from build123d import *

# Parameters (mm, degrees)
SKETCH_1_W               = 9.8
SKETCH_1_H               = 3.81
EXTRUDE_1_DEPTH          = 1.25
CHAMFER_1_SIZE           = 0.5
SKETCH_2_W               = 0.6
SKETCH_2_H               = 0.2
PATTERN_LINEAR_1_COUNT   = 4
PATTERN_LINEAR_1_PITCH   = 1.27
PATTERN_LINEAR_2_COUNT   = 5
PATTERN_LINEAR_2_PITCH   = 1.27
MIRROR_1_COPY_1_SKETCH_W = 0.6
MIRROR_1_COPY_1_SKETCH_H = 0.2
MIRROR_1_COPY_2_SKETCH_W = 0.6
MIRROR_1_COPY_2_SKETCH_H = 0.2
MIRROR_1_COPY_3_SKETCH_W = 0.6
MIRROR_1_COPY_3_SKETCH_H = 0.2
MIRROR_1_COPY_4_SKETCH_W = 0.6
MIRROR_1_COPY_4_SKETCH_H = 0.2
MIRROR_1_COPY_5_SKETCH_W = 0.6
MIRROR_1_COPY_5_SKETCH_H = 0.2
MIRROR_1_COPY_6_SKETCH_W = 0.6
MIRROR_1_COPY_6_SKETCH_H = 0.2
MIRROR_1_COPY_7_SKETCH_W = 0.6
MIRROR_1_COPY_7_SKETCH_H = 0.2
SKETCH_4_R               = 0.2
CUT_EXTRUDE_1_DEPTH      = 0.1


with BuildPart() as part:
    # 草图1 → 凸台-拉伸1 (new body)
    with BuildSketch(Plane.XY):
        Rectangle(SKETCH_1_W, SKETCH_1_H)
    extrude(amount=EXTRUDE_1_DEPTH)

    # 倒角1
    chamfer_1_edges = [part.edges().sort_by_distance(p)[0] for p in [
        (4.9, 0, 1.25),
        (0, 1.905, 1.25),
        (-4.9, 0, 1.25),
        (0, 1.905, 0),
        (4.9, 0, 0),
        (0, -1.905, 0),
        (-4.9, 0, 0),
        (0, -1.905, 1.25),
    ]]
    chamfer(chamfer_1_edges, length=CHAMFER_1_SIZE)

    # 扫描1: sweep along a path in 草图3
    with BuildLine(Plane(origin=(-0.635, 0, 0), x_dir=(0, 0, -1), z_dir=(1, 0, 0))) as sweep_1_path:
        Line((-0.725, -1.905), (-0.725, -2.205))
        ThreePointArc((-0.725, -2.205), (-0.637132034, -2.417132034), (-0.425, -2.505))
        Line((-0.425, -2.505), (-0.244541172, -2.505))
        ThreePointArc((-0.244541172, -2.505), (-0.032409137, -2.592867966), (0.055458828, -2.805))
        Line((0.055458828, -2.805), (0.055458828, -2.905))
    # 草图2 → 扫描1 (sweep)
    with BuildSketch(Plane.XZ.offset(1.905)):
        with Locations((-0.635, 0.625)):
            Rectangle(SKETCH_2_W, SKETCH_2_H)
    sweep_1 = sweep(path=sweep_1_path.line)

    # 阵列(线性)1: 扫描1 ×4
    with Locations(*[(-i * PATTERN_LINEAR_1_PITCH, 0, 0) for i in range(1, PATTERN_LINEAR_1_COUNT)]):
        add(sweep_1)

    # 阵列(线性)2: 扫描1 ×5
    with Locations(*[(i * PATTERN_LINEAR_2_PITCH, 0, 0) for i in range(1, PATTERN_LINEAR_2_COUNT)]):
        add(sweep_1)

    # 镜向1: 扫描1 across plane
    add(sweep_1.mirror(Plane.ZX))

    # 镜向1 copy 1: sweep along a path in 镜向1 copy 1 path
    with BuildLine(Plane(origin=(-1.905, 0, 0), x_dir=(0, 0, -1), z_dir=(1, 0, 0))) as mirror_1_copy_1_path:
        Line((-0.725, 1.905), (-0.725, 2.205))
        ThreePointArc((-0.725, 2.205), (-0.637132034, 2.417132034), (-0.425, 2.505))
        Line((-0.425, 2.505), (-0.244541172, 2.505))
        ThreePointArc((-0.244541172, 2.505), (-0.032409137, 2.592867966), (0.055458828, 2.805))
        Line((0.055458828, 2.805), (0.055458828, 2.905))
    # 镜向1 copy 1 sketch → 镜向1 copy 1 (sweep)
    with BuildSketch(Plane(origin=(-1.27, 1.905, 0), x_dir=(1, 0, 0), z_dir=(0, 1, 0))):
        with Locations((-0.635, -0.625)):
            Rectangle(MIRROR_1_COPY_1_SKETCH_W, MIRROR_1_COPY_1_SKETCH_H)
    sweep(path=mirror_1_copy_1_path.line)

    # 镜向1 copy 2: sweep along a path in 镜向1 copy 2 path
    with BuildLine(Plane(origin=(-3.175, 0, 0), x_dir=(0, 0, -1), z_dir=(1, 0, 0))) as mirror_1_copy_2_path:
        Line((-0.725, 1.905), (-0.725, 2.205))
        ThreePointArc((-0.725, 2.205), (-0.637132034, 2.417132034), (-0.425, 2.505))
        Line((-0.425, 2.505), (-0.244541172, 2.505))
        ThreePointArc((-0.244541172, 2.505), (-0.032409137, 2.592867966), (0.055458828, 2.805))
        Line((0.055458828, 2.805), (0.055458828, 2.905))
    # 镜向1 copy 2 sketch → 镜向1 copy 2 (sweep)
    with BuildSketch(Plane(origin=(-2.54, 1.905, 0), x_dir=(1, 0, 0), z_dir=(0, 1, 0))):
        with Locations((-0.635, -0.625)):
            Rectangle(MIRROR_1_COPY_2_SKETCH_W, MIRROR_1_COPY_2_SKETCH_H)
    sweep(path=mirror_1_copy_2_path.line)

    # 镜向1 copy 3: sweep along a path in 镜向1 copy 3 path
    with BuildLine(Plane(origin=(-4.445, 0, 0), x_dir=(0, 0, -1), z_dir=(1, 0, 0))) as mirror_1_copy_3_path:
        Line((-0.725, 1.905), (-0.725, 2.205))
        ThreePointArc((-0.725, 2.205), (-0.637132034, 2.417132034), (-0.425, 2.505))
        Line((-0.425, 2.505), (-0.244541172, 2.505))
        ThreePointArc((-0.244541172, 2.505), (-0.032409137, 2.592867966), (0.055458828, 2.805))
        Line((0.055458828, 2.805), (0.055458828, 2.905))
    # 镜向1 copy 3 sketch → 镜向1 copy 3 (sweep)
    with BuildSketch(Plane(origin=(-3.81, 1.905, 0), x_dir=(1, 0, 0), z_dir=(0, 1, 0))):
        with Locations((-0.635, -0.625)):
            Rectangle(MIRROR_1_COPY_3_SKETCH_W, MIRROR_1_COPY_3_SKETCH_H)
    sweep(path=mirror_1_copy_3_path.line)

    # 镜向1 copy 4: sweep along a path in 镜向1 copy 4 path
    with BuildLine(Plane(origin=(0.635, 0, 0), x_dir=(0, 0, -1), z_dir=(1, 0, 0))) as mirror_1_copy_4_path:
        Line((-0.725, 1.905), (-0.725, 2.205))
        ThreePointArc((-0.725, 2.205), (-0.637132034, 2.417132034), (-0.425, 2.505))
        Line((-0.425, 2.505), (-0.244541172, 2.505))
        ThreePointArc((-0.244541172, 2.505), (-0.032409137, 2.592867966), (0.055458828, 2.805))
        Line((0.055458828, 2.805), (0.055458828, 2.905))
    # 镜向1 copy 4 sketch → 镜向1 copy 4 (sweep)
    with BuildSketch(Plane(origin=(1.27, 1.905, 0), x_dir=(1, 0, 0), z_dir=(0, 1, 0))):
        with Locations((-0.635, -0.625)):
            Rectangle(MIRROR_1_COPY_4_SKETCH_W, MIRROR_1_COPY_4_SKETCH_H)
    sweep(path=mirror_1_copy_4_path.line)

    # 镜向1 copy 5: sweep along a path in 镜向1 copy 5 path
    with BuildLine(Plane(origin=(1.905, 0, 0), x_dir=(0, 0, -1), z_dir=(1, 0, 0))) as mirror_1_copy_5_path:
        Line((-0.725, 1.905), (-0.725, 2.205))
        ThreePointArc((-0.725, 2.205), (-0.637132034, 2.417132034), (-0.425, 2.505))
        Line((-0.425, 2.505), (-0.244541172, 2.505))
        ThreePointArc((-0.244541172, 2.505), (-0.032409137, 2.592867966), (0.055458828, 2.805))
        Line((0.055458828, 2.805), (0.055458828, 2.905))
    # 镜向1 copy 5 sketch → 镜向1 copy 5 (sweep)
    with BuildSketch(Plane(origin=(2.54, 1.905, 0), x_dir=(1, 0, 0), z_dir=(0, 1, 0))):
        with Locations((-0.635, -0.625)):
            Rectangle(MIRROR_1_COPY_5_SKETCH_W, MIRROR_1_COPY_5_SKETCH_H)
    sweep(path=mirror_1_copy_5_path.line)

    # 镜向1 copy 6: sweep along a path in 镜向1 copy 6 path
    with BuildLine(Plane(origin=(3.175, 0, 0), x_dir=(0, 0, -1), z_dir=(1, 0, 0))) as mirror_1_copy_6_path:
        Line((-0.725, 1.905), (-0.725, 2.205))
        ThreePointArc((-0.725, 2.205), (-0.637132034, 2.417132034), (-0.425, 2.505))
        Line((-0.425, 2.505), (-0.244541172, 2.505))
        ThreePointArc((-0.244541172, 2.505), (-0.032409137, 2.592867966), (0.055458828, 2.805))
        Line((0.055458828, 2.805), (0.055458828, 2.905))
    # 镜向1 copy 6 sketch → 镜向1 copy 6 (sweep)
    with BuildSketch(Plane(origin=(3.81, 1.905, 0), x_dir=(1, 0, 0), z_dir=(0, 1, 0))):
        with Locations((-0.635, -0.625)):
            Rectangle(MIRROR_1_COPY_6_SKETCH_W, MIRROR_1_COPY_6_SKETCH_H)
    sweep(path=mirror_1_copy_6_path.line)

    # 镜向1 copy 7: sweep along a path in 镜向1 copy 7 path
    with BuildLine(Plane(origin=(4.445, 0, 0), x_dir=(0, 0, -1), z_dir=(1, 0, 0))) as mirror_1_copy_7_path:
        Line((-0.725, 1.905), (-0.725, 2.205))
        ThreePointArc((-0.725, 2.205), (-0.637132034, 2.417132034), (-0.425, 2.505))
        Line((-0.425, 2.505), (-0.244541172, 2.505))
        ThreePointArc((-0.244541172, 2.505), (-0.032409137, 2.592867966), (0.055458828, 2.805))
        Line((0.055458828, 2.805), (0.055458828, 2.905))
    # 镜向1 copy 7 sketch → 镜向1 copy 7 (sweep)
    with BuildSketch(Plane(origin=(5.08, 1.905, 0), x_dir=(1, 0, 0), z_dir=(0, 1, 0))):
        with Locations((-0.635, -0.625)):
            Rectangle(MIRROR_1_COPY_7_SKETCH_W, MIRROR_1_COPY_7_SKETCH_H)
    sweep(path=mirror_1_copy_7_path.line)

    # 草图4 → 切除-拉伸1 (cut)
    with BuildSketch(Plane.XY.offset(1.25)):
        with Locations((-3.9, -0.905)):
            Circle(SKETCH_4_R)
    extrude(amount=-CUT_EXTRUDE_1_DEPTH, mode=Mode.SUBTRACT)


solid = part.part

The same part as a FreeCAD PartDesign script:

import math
import FreeCAD as App
import Part
import Sketcher

V = App.Vector


def edges_at(feature, points):
    """Names of the edges that pass closest to the given points."""
    edges = feature.Shape.Edges
    near = lambda p: min(range(len(edges)), key=lambda i: edges[i].distToShape(Part.Vertex(*p))[0])
    return sorted({f"Edge{near(p) + 1}" for p in points})


def add_polygon(sketch, points):
    """Adds a closed chain of lines whose ends are joined by coincident constraints."""
    first, n = sketch.GeometryCount, len(points)
    for a, b in zip(points, points[1:] + points[:1]):
        sketch.addGeometry(Part.LineSegment(App.Vector(*a, 0), App.Vector(*b, 0)), False)
    for i in range(n):
        sketch.addConstraint(Sketcher.Constraint("Coincident", first + i, 2, first + (i + 1) % n, 1))

doc = App.newDocument("Part")
body = doc.addObject("PartDesign::Body", "Body")

sketch1 = doc.addObject("Sketcher::SketchObject", "Sketch")
body.addObject(sketch1)
sketch1.AttachmentSupport = (doc.XY_Plane, [""])
sketch1.MapMode = "FlatFace"
add_polygon(sketch1, [(-4.9, 1.905), (-4.9, -1.905), (4.9, -1.905), (4.9, 1.905)])
sketch1.addConstraint(Sketcher.Constraint("Vertical", 0))
sketch1.addConstraint(Sketcher.Constraint("Horizontal", 1))
sketch1.addConstraint(Sketcher.Constraint("Vertical", 2))
sketch1.addConstraint(Sketcher.Constraint("Horizontal", 3))
sketch1.addConstraint(Sketcher.Constraint("Symmetric", 0, 2, 2, 2, -1, 1))
sketch1.addConstraint(Sketcher.Constraint("DistanceX", 1, 1, 1, 2, 9.8))
sketch1.addConstraint(Sketcher.Constraint("DistanceY", 0, 2, 0, 1, 3.81))
pad1 = doc.addObject("PartDesign::Pad", "Pad")
body.addObject(pad1)
pad1.Profile = sketch1
pad1.Length = 1.25
doc.recompute()

chamfer = doc.addObject("PartDesign::Chamfer", "Chamfer")
body.addObject(chamfer)
chamfer.Base = (pad1, edges_at(pad1, [
    (4.9, 0, 1.25),
    (0, 1.905, 1.25),
    (-4.9, 0, 1.25),
    (0, 1.905, 0),
    (4.9, 0, 0),
    (0, -1.905, 0),
    (-4.9, 0, 0),
    (0, -1.905, 1.25),
]))
chamfer.Size = 0.5

sketch2 = doc.addObject("Sketcher::SketchObject", "Sketch001")
body.addObject(sketch2)
sketch2.AttachmentSupport = (doc.XZ_Plane, [""])
sketch2.MapMode = "FlatFace"
sketch2.AttachmentOffset = App.Placement(V(0, 0, 1.905), App.Rotation())
add_polygon(sketch2, [(-0.935, 0.725), (-0.935, 0.525), (-0.335, 0.525), (-0.335, 0.725)])
sketch2.addConstraint(Sketcher.Constraint("Vertical", 0))
sketch2.addConstraint(Sketcher.Constraint("Horizontal", 1))
sketch2.addConstraint(Sketcher.Constraint("Vertical", 2))
sketch2.addConstraint(Sketcher.Constraint("Horizontal", 3))
sketch2.addConstraint(Sketcher.Constraint("DistanceX", 1, 1, 1, 2, 0.6))
sketch2.addConstraint(Sketcher.Constraint("DistanceY", 0, 2, 0, 1, 0.2))
sketch2.addConstraint(Sketcher.Constraint("DistanceX", 0, 2, -1, 1, 0.935))
sketch2.addConstraint(Sketcher.Constraint("DistanceY", -1, 1, 0, 2, 0.525))

sketch3 = doc.addObject("Sketcher::SketchObject", "Sketch002")
body.addObject(sketch3)
sketch3.AttachmentSupport = (doc.YZ_Plane, [""])
sketch3.MapMode = "FlatFace"
sketch3.AttachmentOffset = App.Placement(V(0, 0, -0.635), App.Rotation())
sketch3.addGeometry(Part.LineSegment(V(-1.905, 0.725, 0), V(-2.205, 0.725, 0)), False)
sketch3.addGeometry(Part.ArcOfCircle(Part.Circle(V(-2.205, 0.425, 0), V(0, 0, 1), 0.3), math.radians(90), math.radians(180)), False)
sketch3.addGeometry(Part.LineSegment(V(-2.505, 0.425, 0), V(-2.505, 0.244541, 0)), False)
sketch3.addGeometry(Part.ArcOfCircle(Part.Circle(V(-2.805, 0.244541, 0), V(0, 0, 1), 0.3), math.radians(-90), math.radians(0)), False)
sketch3.addGeometry(Part.LineSegment(V(-2.805, -0.055459, 0), V(-2.905, -0.055459, 0)), False)
sketch3.addConstraint(Sketcher.Constraint("Tangent", 0, 2, 1, 1))
sketch3.addConstraint(Sketcher.Constraint("Tangent", 1, 2, 2, 1))
sketch3.addConstraint(Sketcher.Constraint("Tangent", 2, 2, 3, 2))
sketch3.addConstraint(Sketcher.Constraint("Tangent", 3, 1, 4, 1))
sketch3.addConstraint(Sketcher.Constraint("Horizontal", 0))
sketch3.addConstraint(Sketcher.Constraint("Vertical", 2))
sketch3.addConstraint(Sketcher.Constraint("Horizontal", 4))
sketch3.addConstraint(Sketcher.Constraint("Equal", 1, 3))
sketch3.addConstraint(Sketcher.Constraint("Radius", 1, 0.3))
sketch3.addConstraint(Sketcher.Constraint("DistanceX", 0, 2, 0, 1, 0.3))
sketch3.addConstraint(Sketcher.Constraint("DistanceX", 4, 2, 4, 1, 0.1))
sketch3.addConstraint(Sketcher.Constraint("DistanceX", 1, 3, -1, 1, 2.205))
sketch3.addConstraint(Sketcher.Constraint("DistanceY", -1, 1, 1, 3, 0.425))
sketch3.addConstraint(Sketcher.Constraint("DistanceY", 2, 2, 2, 1, 0.180459))
doc.recompute()

additivepipe = doc.addObject("PartDesign::AdditivePipe", "AdditivePipe")
body.addObject(additivepipe)
additivepipe.Profile = sketch2
additivepipe.Spine = (sketch3, ["Edge1", "Edge2", "Edge3", "Edge4", "Edge5"])
doc.recompute()

linearpattern = doc.addObject("PartDesign::LinearPattern", "LinearPattern")
body.addObject(linearpattern)
linearpattern.Originals = [additivepipe]
linearpattern.Direction = (doc.X_Axis, [""])
linearpattern.Mode = "offset"
linearpattern.Offset = 1.27
linearpattern.Occurrences = 4
linearpattern.Reversed = True
body.Tip = linearpattern
doc.recompute()

linearpattern2 = doc.addObject("PartDesign::LinearPattern", "LinearPattern001")
body.addObject(linearpattern2)
linearpattern2.Originals = [additivepipe]
linearpattern2.Direction = (doc.X_Axis, [""])
linearpattern2.Mode = "offset"
linearpattern2.Offset = 1.27
linearpattern2.Occurrences = 5
body.Tip = linearpattern2
doc.recompute()

mirrored = doc.addObject("PartDesign::Mirrored", "Mirrored")
body.addObject(mirrored)
mirrored.Originals = [additivepipe]
mirrored.MirrorPlane = (doc.XZ_Plane, [""])
body.Tip = mirrored

sketch4 = doc.addObject("Sketcher::SketchObject", "Sketch003")
body.addObject(sketch4)
sketch4.AttachmentSupport = (doc.XZ_Plane, [""])
sketch4.MapMode = "FlatFace"
sketch4.AttachmentOffset = App.Placement(V(0, 0, -1.905), App.Rotation())
add_polygon(sketch4, [(-2.205, 0.525), (-2.205, 0.725), (-1.605, 0.725), (-1.605, 0.525)])
sketch4.addConstraint(Sketcher.Constraint("Vertical", 0))
sketch4.addConstraint(Sketcher.Constraint("Horizontal", 1))
sketch4.addConstraint(Sketcher.Constraint("Vertical", 2))
sketch4.addConstraint(Sketcher.Constraint("Horizontal", 3))
sketch4.addConstraint(Sketcher.Constraint("DistanceX", 1, 1, 1, 2, 0.6))
sketch4.addConstraint(Sketcher.Constraint("DistanceY", 0, 1, 0, 2, 0.2))
sketch4.addConstraint(Sketcher.Constraint("DistanceX", 0, 2, -1, 1, 2.205))
sketch4.addConstraint(Sketcher.Constraint("DistanceY", -1, 1, 0, 2, 0.725))

sketch5 = doc.addObject("Sketcher::SketchObject", "Sketch004")
body.addObject(sketch5)
sketch5.AttachmentSupport = (doc.YZ_Plane, [""])
sketch5.MapMode = "FlatFace"
sketch5.AttachmentOffset = App.Placement(V(0, 0, -1.905), App.Rotation())
sketch5.addGeometry(Part.LineSegment(V(1.905, 0.725, 0), V(2.205, 0.725, 0)), False)
sketch5.addGeometry(Part.ArcOfCircle(Part.Circle(V(2.205, 0.425, 0), V(0, 0, 1), 0.3), math.radians(0), math.radians(90)), False)
sketch5.addGeometry(Part.LineSegment(V(2.505, 0.425, 0), V(2.505, 0.244541, 0)), False)
sketch5.addGeometry(Part.ArcOfCircle(Part.Circle(V(2.805, 0.244541, 0), V(0, 0, 1), 0.3), math.radians(180), math.radians(270)), False)
sketch5.addGeometry(Part.LineSegment(V(2.805, -0.055459, 0), V(2.905, -0.055459, 0)), False)
sketch5.addConstraint(Sketcher.Constraint("Tangent", 0, 2, 1, 2))
sketch5.addConstraint(Sketcher.Constraint("Tangent", 1, 1, 2, 1))
sketch5.addConstraint(Sketcher.Constraint("Tangent", 2, 2, 3, 1))
sketch5.addConstraint(Sketcher.Constraint("Tangent", 3, 2, 4, 1))
sketch5.addConstraint(Sketcher.Constraint("Horizontal", 0))
sketch5.addConstraint(Sketcher.Constraint("Vertical", 2))
sketch5.addConstraint(Sketcher.Constraint("Horizontal", 4))
sketch5.addConstraint(Sketcher.Constraint("Equal", 1, 3))
sketch5.addConstraint(Sketcher.Constraint("Radius", 1, 0.3))
sketch5.addConstraint(Sketcher.Constraint("DistanceX", 0, 1, 0, 2, 0.3))
sketch5.addConstraint(Sketcher.Constraint("DistanceX", 4, 1, 4, 2, 0.1))
sketch5.addConstraint(Sketcher.Constraint("DistanceX", -1, 1, 1, 3, 2.205))
sketch5.addConstraint(Sketcher.Constraint("DistanceY", -1, 1, 1, 3, 0.425))
sketch5.addConstraint(Sketcher.Constraint("DistanceY", 2, 2, 2, 1, 0.180459))
doc.recompute()

additivepipe2 = doc.addObject("PartDesign::AdditivePipe", "AdditivePipe001")
body.addObject(additivepipe2)
additivepipe2.Profile = sketch4
additivepipe2.Spine = (sketch5, ["Edge1", "Edge2", "Edge3", "Edge4", "Edge5"])

sketch6 = doc.addObject("Sketcher::SketchObject", "Sketch005")
body.addObject(sketch6)
sketch6.AttachmentSupport = (doc.XZ_Plane, [""])
sketch6.MapMode = "FlatFace"
sketch6.AttachmentOffset = App.Placement(V(0, 0, -1.905), App.Rotation())
add_polygon(sketch6, [(-3.475, 0.525), (-3.475, 0.725), (-2.875, 0.725), (-2.875, 0.525)])
sketch6.addConstraint(Sketcher.Constraint("Vertical", 0))
sketch6.addConstraint(Sketcher.Constraint("Horizontal", 1))
sketch6.addConstraint(Sketcher.Constraint("Vertical", 2))
sketch6.addConstraint(Sketcher.Constraint("Horizontal", 3))
sketch6.addConstraint(Sketcher.Constraint("DistanceX", 1, 1, 1, 2, 0.6))
sketch6.addConstraint(Sketcher.Constraint("DistanceY", 0, 1, 0, 2, 0.2))
sketch6.addConstraint(Sketcher.Constraint("DistanceX", 0, 2, -1, 1, 3.475))
sketch6.addConstraint(Sketcher.Constraint("DistanceY", -1, 1, 0, 2, 0.725))

sketch7 = doc.addObject("Sketcher::SketchObject", "Sketch006")
body.addObject(sketch7)
sketch7.AttachmentSupport = (doc.YZ_Plane, [""])
sketch7.MapMode = "FlatFace"
sketch7.AttachmentOffset = App.Placement(V(0, 0, -3.175), App.Rotation())
sketch7.addGeometry(Part.LineSegment(V(1.905, 0.725, 0), V(2.205, 0.725, 0)), False)
sketch7.addGeometry(Part.ArcOfCircle(Part.Circle(V(2.205, 0.425, 0), V(0, 0, 1), 0.3), math.radians(0), math.radians(90)), False)
sketch7.addGeometry(Part.LineSegment(V(2.505, 0.425, 0), V(2.505, 0.244541, 0)), False)
sketch7.addGeometry(Part.ArcOfCircle(Part.Circle(V(2.805, 0.244541, 0), V(0, 0, 1), 0.3), math.radians(180), math.radians(270)), False)
sketch7.addGeometry(Part.LineSegment(V(2.805, -0.055459, 0), V(2.905, -0.055459, 0)), False)
sketch7.addConstraint(Sketcher.Constraint("Tangent", 0, 2, 1, 2))
sketch7.addConstraint(Sketcher.Constraint("Tangent", 1, 1, 2, 1))
sketch7.addConstraint(Sketcher.Constraint("Tangent", 2, 2, 3, 1))
sketch7.addConstraint(Sketcher.Constraint("Tangent", 3, 2, 4, 1))
sketch7.addConstraint(Sketcher.Constraint("Horizontal", 0))
sketch7.addConstraint(Sketcher.Constraint("Vertical", 2))
sketch7.addConstraint(Sketcher.Constraint("Horizontal", 4))
sketch7.addConstraint(Sketcher.Constraint("Equal", 1, 3))
sketch7.addConstraint(Sketcher.Constraint("Radius", 1, 0.3))
sketch7.addConstraint(Sketcher.Constraint("DistanceX", 0, 1, 0, 2, 0.3))
sketch7.addConstraint(Sketcher.Constraint("DistanceX", 4, 1, 4, 2, 0.1))
sketch7.addConstraint(Sketcher.Constraint("DistanceX", -1, 1, 1, 3, 2.205))
sketch7.addConstraint(Sketcher.Constraint("DistanceY", -1, 1, 1, 3, 0.425))
sketch7.addConstraint(Sketcher.Constraint("DistanceY", 2, 2, 2, 1, 0.180459))
doc.recompute()

additivepipe3 = doc.addObject("PartDesign::AdditivePipe", "AdditivePipe002")
body.addObject(additivepipe3)
additivepipe3.Profile = sketch6
additivepipe3.Spine = (sketch7, ["Edge1", "Edge2", "Edge3", "Edge4", "Edge5"])

sketch8 = doc.addObject("Sketcher::SketchObject", "Sketch007")
body.addObject(sketch8)
sketch8.AttachmentSupport = (doc.XZ_Plane, [""])
sketch8.MapMode = "FlatFace"
sketch8.AttachmentOffset = App.Placement(V(0, 0, -1.905), App.Rotation())
add_polygon(sketch8, [(-4.745, 0.525), (-4.745, 0.725), (-4.145, 0.725), (-4.145, 0.525)])
sketch8.addConstraint(Sketcher.Constraint("Vertical", 0))
sketch8.addConstraint(Sketcher.Constraint("Horizontal", 1))
sketch8.addConstraint(Sketcher.Constraint("Vertical", 2))
sketch8.addConstraint(Sketcher.Constraint("Horizontal", 3))
sketch8.addConstraint(Sketcher.Constraint("DistanceX", 1, 1, 1, 2, 0.6))
sketch8.addConstraint(Sketcher.Constraint("DistanceY", 0, 1, 0, 2, 0.2))
sketch8.addConstraint(Sketcher.Constraint("DistanceX", 0, 2, -1, 1, 4.745))
sketch8.addConstraint(Sketcher.Constraint("DistanceY", -1, 1, 0, 2, 0.725))

sketch9 = doc.addObject("Sketcher::SketchObject", "Sketch008")
body.addObject(sketch9)
sketch9.AttachmentSupport = (doc.YZ_Plane, [""])
sketch9.MapMode = "FlatFace"
sketch9.AttachmentOffset = App.Placement(V(0, 0, -4.445), App.Rotation())
sketch9.addGeometry(Part.LineSegment(V(1.905, 0.725, 0), V(2.205, 0.725, 0)), False)
sketch9.addGeometry(Part.ArcOfCircle(Part.Circle(V(2.205, 0.425, 0), V(0, 0, 1), 0.3), math.radians(0), math.radians(90)), False)
sketch9.addGeometry(Part.LineSegment(V(2.505, 0.425, 0), V(2.505, 0.244541, 0)), False)
sketch9.addGeometry(Part.ArcOfCircle(Part.Circle(V(2.805, 0.244541, 0), V(0, 0, 1), 0.3), math.radians(180), math.radians(270)), False)
sketch9.addGeometry(Part.LineSegment(V(2.805, -0.055459, 0), V(2.905, -0.055459, 0)), False)
sketch9.addConstraint(Sketcher.Constraint("Tangent", 0, 2, 1, 2))
sketch9.addConstraint(Sketcher.Constraint("Tangent", 1, 1, 2, 1))
sketch9.addConstraint(Sketcher.Constraint("Tangent", 2, 2, 3, 1))
sketch9.addConstraint(Sketcher.Constraint("Tangent", 3, 2, 4, 1))
sketch9.addConstraint(Sketcher.Constraint("Horizontal", 0))
sketch9.addConstraint(Sketcher.Constraint("Vertical", 2))
sketch9.addConstraint(Sketcher.Constraint("Horizontal", 4))
sketch9.addConstraint(Sketcher.Constraint("Equal", 1, 3))
sketch9.addConstraint(Sketcher.Constraint("Radius", 1, 0.3))
sketch9.addConstraint(Sketcher.Constraint("DistanceX", 0, 1, 0, 2, 0.3))
sketch9.addConstraint(Sketcher.Constraint("DistanceX", 4, 1, 4, 2, 0.1))
sketch9.addConstraint(Sketcher.Constraint("DistanceX", -1, 1, 1, 3, 2.205))
sketch9.addConstraint(Sketcher.Constraint("DistanceY", -1, 1, 1, 3, 0.425))
sketch9.addConstraint(Sketcher.Constraint("DistanceY", 2, 2, 2, 1, 0.180459))
doc.recompute()

additivepipe4 = doc.addObject("PartDesign::AdditivePipe", "AdditivePipe003")
body.addObject(additivepipe4)
additivepipe4.Profile = sketch8
additivepipe4.Spine = (sketch9, ["Edge1", "Edge2", "Edge3", "Edge4", "Edge5"])

sketch10 = doc.addObject("Sketcher::SketchObject", "Sketch009")
body.addObject(sketch10)
sketch10.AttachmentSupport = (doc.XZ_Plane, [""])
sketch10.MapMode = "FlatFace"
sketch10.AttachmentOffset = App.Placement(V(0, 0, -1.905), App.Rotation())
add_polygon(sketch10, [(0.335, 0.525), (0.335, 0.725), (0.935, 0.725), (0.935, 0.525)])
sketch10.addConstraint(Sketcher.Constraint("Vertical", 0))
sketch10.addConstraint(Sketcher.Constraint("Horizontal", 1))
sketch10.addConstraint(Sketcher.Constraint("Vertical", 2))
sketch10.addConstraint(Sketcher.Constraint("Horizontal", 3))
sketch10.addConstraint(Sketcher.Constraint("DistanceX", 1, 1, 1, 2, 0.6))
sketch10.addConstraint(Sketcher.Constraint("DistanceY", 0, 1, 0, 2, 0.2))
sketch10.addConstraint(Sketcher.Constraint("DistanceX", -1, 1, 0, 2, 0.335))
sketch10.addConstraint(Sketcher.Constraint("DistanceY", -1, 1, 0, 2, 0.725))

sketch11 = doc.addObject("Sketcher::SketchObject", "Sketch010")
body.addObject(sketch11)
sketch11.AttachmentSupport = (doc.YZ_Plane, [""])
sketch11.MapMode = "FlatFace"
sketch11.AttachmentOffset = App.Placement(V(0, 0, 0.635), App.Rotation())
sketch11.addGeometry(Part.LineSegment(V(1.905, 0.725, 0), V(2.205, 0.725, 0)), False)
sketch11.addGeometry(Part.ArcOfCircle(Part.Circle(V(2.205, 0.425, 0), V(0, 0, 1), 0.3), math.radians(0), math.radians(90)), False)
sketch11.addGeometry(Part.LineSegment(V(2.505, 0.425, 0), V(2.505, 0.244541, 0)), False)
sketch11.addGeometry(Part.ArcOfCircle(Part.Circle(V(2.805, 0.244541, 0), V(0, 0, 1), 0.3), math.radians(180), math.radians(270)), False)
sketch11.addGeometry(Part.LineSegment(V(2.805, -0.055459, 0), V(2.905, -0.055459, 0)), False)
sketch11.addConstraint(Sketcher.Constraint("Tangent", 0, 2, 1, 2))
sketch11.addConstraint(Sketcher.Constraint("Tangent", 1, 1, 2, 1))
sketch11.addConstraint(Sketcher.Constraint("Tangent", 2, 2, 3, 1))
sketch11.addConstraint(Sketcher.Constraint("Tangent", 3, 2, 4, 1))
sketch11.addConstraint(Sketcher.Constraint("Horizontal", 0))
sketch11.addConstraint(Sketcher.Constraint("Vertical", 2))
sketch11.addConstraint(Sketcher.Constraint("Horizontal", 4))
sketch11.addConstraint(Sketcher.Constraint("Equal", 1, 3))
sketch11.addConstraint(Sketcher.Constraint("Radius", 1, 0.3))
sketch11.addConstraint(Sketcher.Constraint("DistanceX", 0, 1, 0, 2, 0.3))
sketch11.addConstraint(Sketcher.Constraint("DistanceX", 4, 1, 4, 2, 0.1))
sketch11.addConstraint(Sketcher.Constraint("DistanceX", -1, 1, 1, 3, 2.205))
sketch11.addConstraint(Sketcher.Constraint("DistanceY", -1, 1, 1, 3, 0.425))
sketch11.addConstraint(Sketcher.Constraint("DistanceY", 2, 2, 2, 1, 0.180459))
doc.recompute()

additivepipe5 = doc.addObject("PartDesign::AdditivePipe", "AdditivePipe004")
body.addObject(additivepipe5)
additivepipe5.Profile = sketch10
additivepipe5.Spine = (sketch11, ["Edge1", "Edge2", "Edge3", "Edge4", "Edge5"])

sketch12 = doc.addObject("Sketcher::SketchObject", "Sketch011")
body.addObject(sketch12)
sketch12.AttachmentSupport = (doc.XZ_Plane, [""])
sketch12.MapMode = "FlatFace"
sketch12.AttachmentOffset = App.Placement(V(0, 0, -1.905), App.Rotation())
add_polygon(sketch12, [(1.605, 0.525), (1.605, 0.725), (2.205, 0.725), (2.205, 0.525)])
sketch12.addConstraint(Sketcher.Constraint("Vertical", 0))
sketch12.addConstraint(Sketcher.Constraint("Horizontal", 1))
sketch12.addConstraint(Sketcher.Constraint("Vertical", 2))
sketch12.addConstraint(Sketcher.Constraint("Horizontal", 3))
sketch12.addConstraint(Sketcher.Constraint("DistanceX", 1, 1, 1, 2, 0.6))
sketch12.addConstraint(Sketcher.Constraint("DistanceY", 0, 1, 0, 2, 0.2))
sketch12.addConstraint(Sketcher.Constraint("DistanceX", -1, 1, 0, 2, 1.605))
sketch12.addConstraint(Sketcher.Constraint("DistanceY", -1, 1, 0, 2, 0.725))

sketch13 = doc.addObject("Sketcher::SketchObject", "Sketch012")
body.addObject(sketch13)
sketch13.AttachmentSupport = (doc.YZ_Plane, [""])
sketch13.MapMode = "FlatFace"
sketch13.AttachmentOffset = App.Placement(V(0, 0, 1.905), App.Rotation())
sketch13.addGeometry(Part.LineSegment(V(1.905, 0.725, 0), V(2.205, 0.725, 0)), False)
sketch13.addGeometry(Part.ArcOfCircle(Part.Circle(V(2.205, 0.425, 0), V(0, 0, 1), 0.3), math.radians(0), math.radians(90)), False)
sketch13.addGeometry(Part.LineSegment(V(2.505, 0.425, 0), V(2.505, 0.244541, 0)), False)
sketch13.addGeometry(Part.ArcOfCircle(Part.Circle(V(2.805, 0.244541, 0), V(0, 0, 1), 0.3), math.radians(180), math.radians(270)), False)
sketch13.addGeometry(Part.LineSegment(V(2.805, -0.055459, 0), V(2.905, -0.055459, 0)), False)
sketch13.addConstraint(Sketcher.Constraint("Tangent", 0, 2, 1, 2))
sketch13.addConstraint(Sketcher.Constraint("Tangent", 1, 1, 2, 1))
sketch13.addConstraint(Sketcher.Constraint("Tangent", 2, 2, 3, 1))
sketch13.addConstraint(Sketcher.Constraint("Tangent", 3, 2, 4, 1))
sketch13.addConstraint(Sketcher.Constraint("Horizontal", 0))
sketch13.addConstraint(Sketcher.Constraint("Vertical", 2))
sketch13.addConstraint(Sketcher.Constraint("Horizontal", 4))
sketch13.addConstraint(Sketcher.Constraint("Equal", 1, 3))
sketch13.addConstraint(Sketcher.Constraint("Radius", 1, 0.3))
sketch13.addConstraint(Sketcher.Constraint("DistanceX", 0, 1, 0, 2, 0.3))
sketch13.addConstraint(Sketcher.Constraint("DistanceX", 4, 1, 4, 2, 0.1))
sketch13.addConstraint(Sketcher.Constraint("DistanceX", -1, 1, 1, 3, 2.205))
sketch13.addConstraint(Sketcher.Constraint("DistanceY", -1, 1, 1, 3, 0.425))
sketch13.addConstraint(Sketcher.Constraint("DistanceY", 2, 2, 2, 1, 0.180459))
doc.recompute()

additivepipe6 = doc.addObject("PartDesign::AdditivePipe", "AdditivePipe005")
body.addObject(additivepipe6)
additivepipe6.Profile = sketch12
additivepipe6.Spine = (sketch13, ["Edge1", "Edge2", "Edge3", "Edge4", "Edge5"])

sketch14 = doc.addObject("Sketcher::SketchObject", "Sketch013")
body.addObject(sketch14)
sketch14.AttachmentSupport = (doc.XZ_Plane, [""])
sketch14.MapMode = "FlatFace"
sketch14.AttachmentOffset = App.Placement(V(0, 0, -1.905), App.Rotation())
add_polygon(sketch14, [(2.875, 0.525), (2.875, 0.725), (3.475, 0.725), (3.475, 0.525)])
sketch14.addConstraint(Sketcher.Constraint("Vertical", 0))
sketch14.addConstraint(Sketcher.Constraint("Horizontal", 1))
sketch14.addConstraint(Sketcher.Constraint("Vertical", 2))
sketch14.addConstraint(Sketcher.Constraint("Horizontal", 3))
sketch14.addConstraint(Sketcher.Constraint("DistanceX", 1, 1, 1, 2, 0.6))
sketch14.addConstraint(Sketcher.Constraint("DistanceY", 0, 1, 0, 2, 0.2))
sketch14.addConstraint(Sketcher.Constraint("DistanceX", -1, 1, 0, 2, 2.875))
sketch14.addConstraint(Sketcher.Constraint("DistanceY", -1, 1, 0, 2, 0.725))

sketch15 = doc.addObject("Sketcher::SketchObject", "Sketch014")
body.addObject(sketch15)
sketch15.AttachmentSupport = (doc.YZ_Plane, [""])
sketch15.MapMode = "FlatFace"
sketch15.AttachmentOffset = App.Placement(V(0, 0, 3.175), App.Rotation())
sketch15.addGeometry(Part.LineSegment(V(1.905, 0.725, 0), V(2.205, 0.725, 0)), False)
sketch15.addGeometry(Part.ArcOfCircle(Part.Circle(V(2.205, 0.425, 0), V(0, 0, 1), 0.3), math.radians(0), math.radians(90)), False)
sketch15.addGeometry(Part.LineSegment(V(2.505, 0.425, 0), V(2.505, 0.244541, 0)), False)
sketch15.addGeometry(Part.ArcOfCircle(Part.Circle(V(2.805, 0.244541, 0), V(0, 0, 1), 0.3), math.radians(180), math.radians(270)), False)
sketch15.addGeometry(Part.LineSegment(V(2.805, -0.055459, 0), V(2.905, -0.055459, 0)), False)
sketch15.addConstraint(Sketcher.Constraint("Tangent", 0, 2, 1, 2))
sketch15.addConstraint(Sketcher.Constraint("Tangent", 1, 1, 2, 1))
sketch15.addConstraint(Sketcher.Constraint("Tangent", 2, 2, 3, 1))
sketch15.addConstraint(Sketcher.Constraint("Tangent", 3, 2, 4, 1))
sketch15.addConstraint(Sketcher.Constraint("Horizontal", 0))
sketch15.addConstraint(Sketcher.Constraint("Vertical", 2))
sketch15.addConstraint(Sketcher.Constraint("Horizontal", 4))
sketch15.addConstraint(Sketcher.Constraint("Equal", 1, 3))
sketch15.addConstraint(Sketcher.Constraint("Radius", 1, 0.3))
sketch15.addConstraint(Sketcher.Constraint("DistanceX", 0, 1, 0, 2, 0.3))
sketch15.addConstraint(Sketcher.Constraint("DistanceX", 4, 1, 4, 2, 0.1))
sketch15.addConstraint(Sketcher.Constraint("DistanceX", -1, 1, 1, 3, 2.205))
sketch15.addConstraint(Sketcher.Constraint("DistanceY", -1, 1, 1, 3, 0.425))
sketch15.addConstraint(Sketcher.Constraint("DistanceY", 2, 2, 2, 1, 0.180459))
doc.recompute()

additivepipe7 = doc.addObject("PartDesign::AdditivePipe", "AdditivePipe006")
body.addObject(additivepipe7)
additivepipe7.Profile = sketch14
additivepipe7.Spine = (sketch15, ["Edge1", "Edge2", "Edge3", "Edge4", "Edge5"])

sketch16 = doc.addObject("Sketcher::SketchObject", "Sketch015")
body.addObject(sketch16)
sketch16.AttachmentSupport = (doc.XZ_Plane, [""])
sketch16.MapMode = "FlatFace"
sketch16.AttachmentOffset = App.Placement(V(0, 0, -1.905), App.Rotation())
add_polygon(sketch16, [(4.145, 0.525), (4.145, 0.725), (4.745, 0.725), (4.745, 0.525)])
sketch16.addConstraint(Sketcher.Constraint("Vertical", 0))
sketch16.addConstraint(Sketcher.Constraint("Horizontal", 1))
sketch16.addConstraint(Sketcher.Constraint("Vertical", 2))
sketch16.addConstraint(Sketcher.Constraint("Horizontal", 3))
sketch16.addConstraint(Sketcher.Constraint("DistanceX", 1, 1, 1, 2, 0.6))
sketch16.addConstraint(Sketcher.Constraint("DistanceY", 0, 1, 0, 2, 0.2))
sketch16.addConstraint(Sketcher.Constraint("DistanceX", -1, 1, 0, 2, 4.145))
sketch16.addConstraint(Sketcher.Constraint("DistanceY", -1, 1, 0, 2, 0.725))

sketch17 = doc.addObject("Sketcher::SketchObject", "Sketch016")
body.addObject(sketch17)
sketch17.AttachmentSupport = (doc.YZ_Plane, [""])
sketch17.MapMode = "FlatFace"
sketch17.AttachmentOffset = App.Placement(V(0, 0, 4.445), App.Rotation())
sketch17.addGeometry(Part.LineSegment(V(1.905, 0.725, 0), V(2.205, 0.725, 0)), False)
sketch17.addGeometry(Part.ArcOfCircle(Part.Circle(V(2.205, 0.425, 0), V(0, 0, 1), 0.3), math.radians(0), math.radians(90)), False)
sketch17.addGeometry(Part.LineSegment(V(2.505, 0.425, 0), V(2.505, 0.244541, 0)), False)
sketch17.addGeometry(Part.ArcOfCircle(Part.Circle(V(2.805, 0.244541, 0), V(0, 0, 1), 0.3), math.radians(180), math.radians(270)), False)
sketch17.addGeometry(Part.LineSegment(V(2.805, -0.055459, 0), V(2.905, -0.055459, 0)), False)
sketch17.addConstraint(Sketcher.Constraint("Tangent", 0, 2, 1, 2))
sketch17.addConstraint(Sketcher.Constraint("Tangent", 1, 1, 2, 1))
sketch17.addConstraint(Sketcher.Constraint("Tangent", 2, 2, 3, 1))
sketch17.addConstraint(Sketcher.Constraint("Tangent", 3, 2, 4, 1))
sketch17.addConstraint(Sketcher.Constraint("Horizontal", 0))
sketch17.addConstraint(Sketcher.Constraint("Vertical", 2))
sketch17.addConstraint(Sketcher.Constraint("Horizontal", 4))
sketch17.addConstraint(Sketcher.Constraint("Equal", 1, 3))
sketch17.addConstraint(Sketcher.Constraint("Radius", 1, 0.3))
sketch17.addConstraint(Sketcher.Constraint("DistanceX", 0, 1, 0, 2, 0.3))
sketch17.addConstraint(Sketcher.Constraint("DistanceX", 4, 1, 4, 2, 0.1))
sketch17.addConstraint(Sketcher.Constraint("DistanceX", -1, 1, 1, 3, 2.205))
sketch17.addConstraint(Sketcher.Constraint("DistanceY", -1, 1, 1, 3, 0.425))
sketch17.addConstraint(Sketcher.Constraint("DistanceY", 2, 2, 2, 1, 0.180459))
doc.recompute()

additivepipe8 = doc.addObject("PartDesign::AdditivePipe", "AdditivePipe007")
body.addObject(additivepipe8)
additivepipe8.Profile = sketch16
additivepipe8.Spine = (sketch17, ["Edge1", "Edge2", "Edge3", "Edge4", "Edge5"])

sketch18 = doc.addObject("Sketcher::SketchObject", "Sketch017")
body.addObject(sketch18)
sketch18.AttachmentSupport = (doc.XY_Plane, [""])
sketch18.MapMode = "FlatFace"
sketch18.AttachmentOffset = App.Placement(V(0, 0, 1.25), App.Rotation())
sketch18.addGeometry(Part.Circle(V(-3.9, -0.905, 0), V(0, 0, 1), 0.2), False)
sketch18.addConstraint(Sketcher.Constraint("Diameter", 0, 0.4))
sketch18.addConstraint(Sketcher.Constraint("DistanceX", 0, 3, -1, 1, 3.9))
sketch18.addConstraint(Sketcher.Constraint("DistanceY", 0, 3, -1, 1, 0.905))
pocket1 = doc.addObject("PartDesign::Pocket", "Pocket")
body.addObject(pocket1)
pocket1.Profile = sketch18
pocket1.Length = 0.1

doc.recompute()
